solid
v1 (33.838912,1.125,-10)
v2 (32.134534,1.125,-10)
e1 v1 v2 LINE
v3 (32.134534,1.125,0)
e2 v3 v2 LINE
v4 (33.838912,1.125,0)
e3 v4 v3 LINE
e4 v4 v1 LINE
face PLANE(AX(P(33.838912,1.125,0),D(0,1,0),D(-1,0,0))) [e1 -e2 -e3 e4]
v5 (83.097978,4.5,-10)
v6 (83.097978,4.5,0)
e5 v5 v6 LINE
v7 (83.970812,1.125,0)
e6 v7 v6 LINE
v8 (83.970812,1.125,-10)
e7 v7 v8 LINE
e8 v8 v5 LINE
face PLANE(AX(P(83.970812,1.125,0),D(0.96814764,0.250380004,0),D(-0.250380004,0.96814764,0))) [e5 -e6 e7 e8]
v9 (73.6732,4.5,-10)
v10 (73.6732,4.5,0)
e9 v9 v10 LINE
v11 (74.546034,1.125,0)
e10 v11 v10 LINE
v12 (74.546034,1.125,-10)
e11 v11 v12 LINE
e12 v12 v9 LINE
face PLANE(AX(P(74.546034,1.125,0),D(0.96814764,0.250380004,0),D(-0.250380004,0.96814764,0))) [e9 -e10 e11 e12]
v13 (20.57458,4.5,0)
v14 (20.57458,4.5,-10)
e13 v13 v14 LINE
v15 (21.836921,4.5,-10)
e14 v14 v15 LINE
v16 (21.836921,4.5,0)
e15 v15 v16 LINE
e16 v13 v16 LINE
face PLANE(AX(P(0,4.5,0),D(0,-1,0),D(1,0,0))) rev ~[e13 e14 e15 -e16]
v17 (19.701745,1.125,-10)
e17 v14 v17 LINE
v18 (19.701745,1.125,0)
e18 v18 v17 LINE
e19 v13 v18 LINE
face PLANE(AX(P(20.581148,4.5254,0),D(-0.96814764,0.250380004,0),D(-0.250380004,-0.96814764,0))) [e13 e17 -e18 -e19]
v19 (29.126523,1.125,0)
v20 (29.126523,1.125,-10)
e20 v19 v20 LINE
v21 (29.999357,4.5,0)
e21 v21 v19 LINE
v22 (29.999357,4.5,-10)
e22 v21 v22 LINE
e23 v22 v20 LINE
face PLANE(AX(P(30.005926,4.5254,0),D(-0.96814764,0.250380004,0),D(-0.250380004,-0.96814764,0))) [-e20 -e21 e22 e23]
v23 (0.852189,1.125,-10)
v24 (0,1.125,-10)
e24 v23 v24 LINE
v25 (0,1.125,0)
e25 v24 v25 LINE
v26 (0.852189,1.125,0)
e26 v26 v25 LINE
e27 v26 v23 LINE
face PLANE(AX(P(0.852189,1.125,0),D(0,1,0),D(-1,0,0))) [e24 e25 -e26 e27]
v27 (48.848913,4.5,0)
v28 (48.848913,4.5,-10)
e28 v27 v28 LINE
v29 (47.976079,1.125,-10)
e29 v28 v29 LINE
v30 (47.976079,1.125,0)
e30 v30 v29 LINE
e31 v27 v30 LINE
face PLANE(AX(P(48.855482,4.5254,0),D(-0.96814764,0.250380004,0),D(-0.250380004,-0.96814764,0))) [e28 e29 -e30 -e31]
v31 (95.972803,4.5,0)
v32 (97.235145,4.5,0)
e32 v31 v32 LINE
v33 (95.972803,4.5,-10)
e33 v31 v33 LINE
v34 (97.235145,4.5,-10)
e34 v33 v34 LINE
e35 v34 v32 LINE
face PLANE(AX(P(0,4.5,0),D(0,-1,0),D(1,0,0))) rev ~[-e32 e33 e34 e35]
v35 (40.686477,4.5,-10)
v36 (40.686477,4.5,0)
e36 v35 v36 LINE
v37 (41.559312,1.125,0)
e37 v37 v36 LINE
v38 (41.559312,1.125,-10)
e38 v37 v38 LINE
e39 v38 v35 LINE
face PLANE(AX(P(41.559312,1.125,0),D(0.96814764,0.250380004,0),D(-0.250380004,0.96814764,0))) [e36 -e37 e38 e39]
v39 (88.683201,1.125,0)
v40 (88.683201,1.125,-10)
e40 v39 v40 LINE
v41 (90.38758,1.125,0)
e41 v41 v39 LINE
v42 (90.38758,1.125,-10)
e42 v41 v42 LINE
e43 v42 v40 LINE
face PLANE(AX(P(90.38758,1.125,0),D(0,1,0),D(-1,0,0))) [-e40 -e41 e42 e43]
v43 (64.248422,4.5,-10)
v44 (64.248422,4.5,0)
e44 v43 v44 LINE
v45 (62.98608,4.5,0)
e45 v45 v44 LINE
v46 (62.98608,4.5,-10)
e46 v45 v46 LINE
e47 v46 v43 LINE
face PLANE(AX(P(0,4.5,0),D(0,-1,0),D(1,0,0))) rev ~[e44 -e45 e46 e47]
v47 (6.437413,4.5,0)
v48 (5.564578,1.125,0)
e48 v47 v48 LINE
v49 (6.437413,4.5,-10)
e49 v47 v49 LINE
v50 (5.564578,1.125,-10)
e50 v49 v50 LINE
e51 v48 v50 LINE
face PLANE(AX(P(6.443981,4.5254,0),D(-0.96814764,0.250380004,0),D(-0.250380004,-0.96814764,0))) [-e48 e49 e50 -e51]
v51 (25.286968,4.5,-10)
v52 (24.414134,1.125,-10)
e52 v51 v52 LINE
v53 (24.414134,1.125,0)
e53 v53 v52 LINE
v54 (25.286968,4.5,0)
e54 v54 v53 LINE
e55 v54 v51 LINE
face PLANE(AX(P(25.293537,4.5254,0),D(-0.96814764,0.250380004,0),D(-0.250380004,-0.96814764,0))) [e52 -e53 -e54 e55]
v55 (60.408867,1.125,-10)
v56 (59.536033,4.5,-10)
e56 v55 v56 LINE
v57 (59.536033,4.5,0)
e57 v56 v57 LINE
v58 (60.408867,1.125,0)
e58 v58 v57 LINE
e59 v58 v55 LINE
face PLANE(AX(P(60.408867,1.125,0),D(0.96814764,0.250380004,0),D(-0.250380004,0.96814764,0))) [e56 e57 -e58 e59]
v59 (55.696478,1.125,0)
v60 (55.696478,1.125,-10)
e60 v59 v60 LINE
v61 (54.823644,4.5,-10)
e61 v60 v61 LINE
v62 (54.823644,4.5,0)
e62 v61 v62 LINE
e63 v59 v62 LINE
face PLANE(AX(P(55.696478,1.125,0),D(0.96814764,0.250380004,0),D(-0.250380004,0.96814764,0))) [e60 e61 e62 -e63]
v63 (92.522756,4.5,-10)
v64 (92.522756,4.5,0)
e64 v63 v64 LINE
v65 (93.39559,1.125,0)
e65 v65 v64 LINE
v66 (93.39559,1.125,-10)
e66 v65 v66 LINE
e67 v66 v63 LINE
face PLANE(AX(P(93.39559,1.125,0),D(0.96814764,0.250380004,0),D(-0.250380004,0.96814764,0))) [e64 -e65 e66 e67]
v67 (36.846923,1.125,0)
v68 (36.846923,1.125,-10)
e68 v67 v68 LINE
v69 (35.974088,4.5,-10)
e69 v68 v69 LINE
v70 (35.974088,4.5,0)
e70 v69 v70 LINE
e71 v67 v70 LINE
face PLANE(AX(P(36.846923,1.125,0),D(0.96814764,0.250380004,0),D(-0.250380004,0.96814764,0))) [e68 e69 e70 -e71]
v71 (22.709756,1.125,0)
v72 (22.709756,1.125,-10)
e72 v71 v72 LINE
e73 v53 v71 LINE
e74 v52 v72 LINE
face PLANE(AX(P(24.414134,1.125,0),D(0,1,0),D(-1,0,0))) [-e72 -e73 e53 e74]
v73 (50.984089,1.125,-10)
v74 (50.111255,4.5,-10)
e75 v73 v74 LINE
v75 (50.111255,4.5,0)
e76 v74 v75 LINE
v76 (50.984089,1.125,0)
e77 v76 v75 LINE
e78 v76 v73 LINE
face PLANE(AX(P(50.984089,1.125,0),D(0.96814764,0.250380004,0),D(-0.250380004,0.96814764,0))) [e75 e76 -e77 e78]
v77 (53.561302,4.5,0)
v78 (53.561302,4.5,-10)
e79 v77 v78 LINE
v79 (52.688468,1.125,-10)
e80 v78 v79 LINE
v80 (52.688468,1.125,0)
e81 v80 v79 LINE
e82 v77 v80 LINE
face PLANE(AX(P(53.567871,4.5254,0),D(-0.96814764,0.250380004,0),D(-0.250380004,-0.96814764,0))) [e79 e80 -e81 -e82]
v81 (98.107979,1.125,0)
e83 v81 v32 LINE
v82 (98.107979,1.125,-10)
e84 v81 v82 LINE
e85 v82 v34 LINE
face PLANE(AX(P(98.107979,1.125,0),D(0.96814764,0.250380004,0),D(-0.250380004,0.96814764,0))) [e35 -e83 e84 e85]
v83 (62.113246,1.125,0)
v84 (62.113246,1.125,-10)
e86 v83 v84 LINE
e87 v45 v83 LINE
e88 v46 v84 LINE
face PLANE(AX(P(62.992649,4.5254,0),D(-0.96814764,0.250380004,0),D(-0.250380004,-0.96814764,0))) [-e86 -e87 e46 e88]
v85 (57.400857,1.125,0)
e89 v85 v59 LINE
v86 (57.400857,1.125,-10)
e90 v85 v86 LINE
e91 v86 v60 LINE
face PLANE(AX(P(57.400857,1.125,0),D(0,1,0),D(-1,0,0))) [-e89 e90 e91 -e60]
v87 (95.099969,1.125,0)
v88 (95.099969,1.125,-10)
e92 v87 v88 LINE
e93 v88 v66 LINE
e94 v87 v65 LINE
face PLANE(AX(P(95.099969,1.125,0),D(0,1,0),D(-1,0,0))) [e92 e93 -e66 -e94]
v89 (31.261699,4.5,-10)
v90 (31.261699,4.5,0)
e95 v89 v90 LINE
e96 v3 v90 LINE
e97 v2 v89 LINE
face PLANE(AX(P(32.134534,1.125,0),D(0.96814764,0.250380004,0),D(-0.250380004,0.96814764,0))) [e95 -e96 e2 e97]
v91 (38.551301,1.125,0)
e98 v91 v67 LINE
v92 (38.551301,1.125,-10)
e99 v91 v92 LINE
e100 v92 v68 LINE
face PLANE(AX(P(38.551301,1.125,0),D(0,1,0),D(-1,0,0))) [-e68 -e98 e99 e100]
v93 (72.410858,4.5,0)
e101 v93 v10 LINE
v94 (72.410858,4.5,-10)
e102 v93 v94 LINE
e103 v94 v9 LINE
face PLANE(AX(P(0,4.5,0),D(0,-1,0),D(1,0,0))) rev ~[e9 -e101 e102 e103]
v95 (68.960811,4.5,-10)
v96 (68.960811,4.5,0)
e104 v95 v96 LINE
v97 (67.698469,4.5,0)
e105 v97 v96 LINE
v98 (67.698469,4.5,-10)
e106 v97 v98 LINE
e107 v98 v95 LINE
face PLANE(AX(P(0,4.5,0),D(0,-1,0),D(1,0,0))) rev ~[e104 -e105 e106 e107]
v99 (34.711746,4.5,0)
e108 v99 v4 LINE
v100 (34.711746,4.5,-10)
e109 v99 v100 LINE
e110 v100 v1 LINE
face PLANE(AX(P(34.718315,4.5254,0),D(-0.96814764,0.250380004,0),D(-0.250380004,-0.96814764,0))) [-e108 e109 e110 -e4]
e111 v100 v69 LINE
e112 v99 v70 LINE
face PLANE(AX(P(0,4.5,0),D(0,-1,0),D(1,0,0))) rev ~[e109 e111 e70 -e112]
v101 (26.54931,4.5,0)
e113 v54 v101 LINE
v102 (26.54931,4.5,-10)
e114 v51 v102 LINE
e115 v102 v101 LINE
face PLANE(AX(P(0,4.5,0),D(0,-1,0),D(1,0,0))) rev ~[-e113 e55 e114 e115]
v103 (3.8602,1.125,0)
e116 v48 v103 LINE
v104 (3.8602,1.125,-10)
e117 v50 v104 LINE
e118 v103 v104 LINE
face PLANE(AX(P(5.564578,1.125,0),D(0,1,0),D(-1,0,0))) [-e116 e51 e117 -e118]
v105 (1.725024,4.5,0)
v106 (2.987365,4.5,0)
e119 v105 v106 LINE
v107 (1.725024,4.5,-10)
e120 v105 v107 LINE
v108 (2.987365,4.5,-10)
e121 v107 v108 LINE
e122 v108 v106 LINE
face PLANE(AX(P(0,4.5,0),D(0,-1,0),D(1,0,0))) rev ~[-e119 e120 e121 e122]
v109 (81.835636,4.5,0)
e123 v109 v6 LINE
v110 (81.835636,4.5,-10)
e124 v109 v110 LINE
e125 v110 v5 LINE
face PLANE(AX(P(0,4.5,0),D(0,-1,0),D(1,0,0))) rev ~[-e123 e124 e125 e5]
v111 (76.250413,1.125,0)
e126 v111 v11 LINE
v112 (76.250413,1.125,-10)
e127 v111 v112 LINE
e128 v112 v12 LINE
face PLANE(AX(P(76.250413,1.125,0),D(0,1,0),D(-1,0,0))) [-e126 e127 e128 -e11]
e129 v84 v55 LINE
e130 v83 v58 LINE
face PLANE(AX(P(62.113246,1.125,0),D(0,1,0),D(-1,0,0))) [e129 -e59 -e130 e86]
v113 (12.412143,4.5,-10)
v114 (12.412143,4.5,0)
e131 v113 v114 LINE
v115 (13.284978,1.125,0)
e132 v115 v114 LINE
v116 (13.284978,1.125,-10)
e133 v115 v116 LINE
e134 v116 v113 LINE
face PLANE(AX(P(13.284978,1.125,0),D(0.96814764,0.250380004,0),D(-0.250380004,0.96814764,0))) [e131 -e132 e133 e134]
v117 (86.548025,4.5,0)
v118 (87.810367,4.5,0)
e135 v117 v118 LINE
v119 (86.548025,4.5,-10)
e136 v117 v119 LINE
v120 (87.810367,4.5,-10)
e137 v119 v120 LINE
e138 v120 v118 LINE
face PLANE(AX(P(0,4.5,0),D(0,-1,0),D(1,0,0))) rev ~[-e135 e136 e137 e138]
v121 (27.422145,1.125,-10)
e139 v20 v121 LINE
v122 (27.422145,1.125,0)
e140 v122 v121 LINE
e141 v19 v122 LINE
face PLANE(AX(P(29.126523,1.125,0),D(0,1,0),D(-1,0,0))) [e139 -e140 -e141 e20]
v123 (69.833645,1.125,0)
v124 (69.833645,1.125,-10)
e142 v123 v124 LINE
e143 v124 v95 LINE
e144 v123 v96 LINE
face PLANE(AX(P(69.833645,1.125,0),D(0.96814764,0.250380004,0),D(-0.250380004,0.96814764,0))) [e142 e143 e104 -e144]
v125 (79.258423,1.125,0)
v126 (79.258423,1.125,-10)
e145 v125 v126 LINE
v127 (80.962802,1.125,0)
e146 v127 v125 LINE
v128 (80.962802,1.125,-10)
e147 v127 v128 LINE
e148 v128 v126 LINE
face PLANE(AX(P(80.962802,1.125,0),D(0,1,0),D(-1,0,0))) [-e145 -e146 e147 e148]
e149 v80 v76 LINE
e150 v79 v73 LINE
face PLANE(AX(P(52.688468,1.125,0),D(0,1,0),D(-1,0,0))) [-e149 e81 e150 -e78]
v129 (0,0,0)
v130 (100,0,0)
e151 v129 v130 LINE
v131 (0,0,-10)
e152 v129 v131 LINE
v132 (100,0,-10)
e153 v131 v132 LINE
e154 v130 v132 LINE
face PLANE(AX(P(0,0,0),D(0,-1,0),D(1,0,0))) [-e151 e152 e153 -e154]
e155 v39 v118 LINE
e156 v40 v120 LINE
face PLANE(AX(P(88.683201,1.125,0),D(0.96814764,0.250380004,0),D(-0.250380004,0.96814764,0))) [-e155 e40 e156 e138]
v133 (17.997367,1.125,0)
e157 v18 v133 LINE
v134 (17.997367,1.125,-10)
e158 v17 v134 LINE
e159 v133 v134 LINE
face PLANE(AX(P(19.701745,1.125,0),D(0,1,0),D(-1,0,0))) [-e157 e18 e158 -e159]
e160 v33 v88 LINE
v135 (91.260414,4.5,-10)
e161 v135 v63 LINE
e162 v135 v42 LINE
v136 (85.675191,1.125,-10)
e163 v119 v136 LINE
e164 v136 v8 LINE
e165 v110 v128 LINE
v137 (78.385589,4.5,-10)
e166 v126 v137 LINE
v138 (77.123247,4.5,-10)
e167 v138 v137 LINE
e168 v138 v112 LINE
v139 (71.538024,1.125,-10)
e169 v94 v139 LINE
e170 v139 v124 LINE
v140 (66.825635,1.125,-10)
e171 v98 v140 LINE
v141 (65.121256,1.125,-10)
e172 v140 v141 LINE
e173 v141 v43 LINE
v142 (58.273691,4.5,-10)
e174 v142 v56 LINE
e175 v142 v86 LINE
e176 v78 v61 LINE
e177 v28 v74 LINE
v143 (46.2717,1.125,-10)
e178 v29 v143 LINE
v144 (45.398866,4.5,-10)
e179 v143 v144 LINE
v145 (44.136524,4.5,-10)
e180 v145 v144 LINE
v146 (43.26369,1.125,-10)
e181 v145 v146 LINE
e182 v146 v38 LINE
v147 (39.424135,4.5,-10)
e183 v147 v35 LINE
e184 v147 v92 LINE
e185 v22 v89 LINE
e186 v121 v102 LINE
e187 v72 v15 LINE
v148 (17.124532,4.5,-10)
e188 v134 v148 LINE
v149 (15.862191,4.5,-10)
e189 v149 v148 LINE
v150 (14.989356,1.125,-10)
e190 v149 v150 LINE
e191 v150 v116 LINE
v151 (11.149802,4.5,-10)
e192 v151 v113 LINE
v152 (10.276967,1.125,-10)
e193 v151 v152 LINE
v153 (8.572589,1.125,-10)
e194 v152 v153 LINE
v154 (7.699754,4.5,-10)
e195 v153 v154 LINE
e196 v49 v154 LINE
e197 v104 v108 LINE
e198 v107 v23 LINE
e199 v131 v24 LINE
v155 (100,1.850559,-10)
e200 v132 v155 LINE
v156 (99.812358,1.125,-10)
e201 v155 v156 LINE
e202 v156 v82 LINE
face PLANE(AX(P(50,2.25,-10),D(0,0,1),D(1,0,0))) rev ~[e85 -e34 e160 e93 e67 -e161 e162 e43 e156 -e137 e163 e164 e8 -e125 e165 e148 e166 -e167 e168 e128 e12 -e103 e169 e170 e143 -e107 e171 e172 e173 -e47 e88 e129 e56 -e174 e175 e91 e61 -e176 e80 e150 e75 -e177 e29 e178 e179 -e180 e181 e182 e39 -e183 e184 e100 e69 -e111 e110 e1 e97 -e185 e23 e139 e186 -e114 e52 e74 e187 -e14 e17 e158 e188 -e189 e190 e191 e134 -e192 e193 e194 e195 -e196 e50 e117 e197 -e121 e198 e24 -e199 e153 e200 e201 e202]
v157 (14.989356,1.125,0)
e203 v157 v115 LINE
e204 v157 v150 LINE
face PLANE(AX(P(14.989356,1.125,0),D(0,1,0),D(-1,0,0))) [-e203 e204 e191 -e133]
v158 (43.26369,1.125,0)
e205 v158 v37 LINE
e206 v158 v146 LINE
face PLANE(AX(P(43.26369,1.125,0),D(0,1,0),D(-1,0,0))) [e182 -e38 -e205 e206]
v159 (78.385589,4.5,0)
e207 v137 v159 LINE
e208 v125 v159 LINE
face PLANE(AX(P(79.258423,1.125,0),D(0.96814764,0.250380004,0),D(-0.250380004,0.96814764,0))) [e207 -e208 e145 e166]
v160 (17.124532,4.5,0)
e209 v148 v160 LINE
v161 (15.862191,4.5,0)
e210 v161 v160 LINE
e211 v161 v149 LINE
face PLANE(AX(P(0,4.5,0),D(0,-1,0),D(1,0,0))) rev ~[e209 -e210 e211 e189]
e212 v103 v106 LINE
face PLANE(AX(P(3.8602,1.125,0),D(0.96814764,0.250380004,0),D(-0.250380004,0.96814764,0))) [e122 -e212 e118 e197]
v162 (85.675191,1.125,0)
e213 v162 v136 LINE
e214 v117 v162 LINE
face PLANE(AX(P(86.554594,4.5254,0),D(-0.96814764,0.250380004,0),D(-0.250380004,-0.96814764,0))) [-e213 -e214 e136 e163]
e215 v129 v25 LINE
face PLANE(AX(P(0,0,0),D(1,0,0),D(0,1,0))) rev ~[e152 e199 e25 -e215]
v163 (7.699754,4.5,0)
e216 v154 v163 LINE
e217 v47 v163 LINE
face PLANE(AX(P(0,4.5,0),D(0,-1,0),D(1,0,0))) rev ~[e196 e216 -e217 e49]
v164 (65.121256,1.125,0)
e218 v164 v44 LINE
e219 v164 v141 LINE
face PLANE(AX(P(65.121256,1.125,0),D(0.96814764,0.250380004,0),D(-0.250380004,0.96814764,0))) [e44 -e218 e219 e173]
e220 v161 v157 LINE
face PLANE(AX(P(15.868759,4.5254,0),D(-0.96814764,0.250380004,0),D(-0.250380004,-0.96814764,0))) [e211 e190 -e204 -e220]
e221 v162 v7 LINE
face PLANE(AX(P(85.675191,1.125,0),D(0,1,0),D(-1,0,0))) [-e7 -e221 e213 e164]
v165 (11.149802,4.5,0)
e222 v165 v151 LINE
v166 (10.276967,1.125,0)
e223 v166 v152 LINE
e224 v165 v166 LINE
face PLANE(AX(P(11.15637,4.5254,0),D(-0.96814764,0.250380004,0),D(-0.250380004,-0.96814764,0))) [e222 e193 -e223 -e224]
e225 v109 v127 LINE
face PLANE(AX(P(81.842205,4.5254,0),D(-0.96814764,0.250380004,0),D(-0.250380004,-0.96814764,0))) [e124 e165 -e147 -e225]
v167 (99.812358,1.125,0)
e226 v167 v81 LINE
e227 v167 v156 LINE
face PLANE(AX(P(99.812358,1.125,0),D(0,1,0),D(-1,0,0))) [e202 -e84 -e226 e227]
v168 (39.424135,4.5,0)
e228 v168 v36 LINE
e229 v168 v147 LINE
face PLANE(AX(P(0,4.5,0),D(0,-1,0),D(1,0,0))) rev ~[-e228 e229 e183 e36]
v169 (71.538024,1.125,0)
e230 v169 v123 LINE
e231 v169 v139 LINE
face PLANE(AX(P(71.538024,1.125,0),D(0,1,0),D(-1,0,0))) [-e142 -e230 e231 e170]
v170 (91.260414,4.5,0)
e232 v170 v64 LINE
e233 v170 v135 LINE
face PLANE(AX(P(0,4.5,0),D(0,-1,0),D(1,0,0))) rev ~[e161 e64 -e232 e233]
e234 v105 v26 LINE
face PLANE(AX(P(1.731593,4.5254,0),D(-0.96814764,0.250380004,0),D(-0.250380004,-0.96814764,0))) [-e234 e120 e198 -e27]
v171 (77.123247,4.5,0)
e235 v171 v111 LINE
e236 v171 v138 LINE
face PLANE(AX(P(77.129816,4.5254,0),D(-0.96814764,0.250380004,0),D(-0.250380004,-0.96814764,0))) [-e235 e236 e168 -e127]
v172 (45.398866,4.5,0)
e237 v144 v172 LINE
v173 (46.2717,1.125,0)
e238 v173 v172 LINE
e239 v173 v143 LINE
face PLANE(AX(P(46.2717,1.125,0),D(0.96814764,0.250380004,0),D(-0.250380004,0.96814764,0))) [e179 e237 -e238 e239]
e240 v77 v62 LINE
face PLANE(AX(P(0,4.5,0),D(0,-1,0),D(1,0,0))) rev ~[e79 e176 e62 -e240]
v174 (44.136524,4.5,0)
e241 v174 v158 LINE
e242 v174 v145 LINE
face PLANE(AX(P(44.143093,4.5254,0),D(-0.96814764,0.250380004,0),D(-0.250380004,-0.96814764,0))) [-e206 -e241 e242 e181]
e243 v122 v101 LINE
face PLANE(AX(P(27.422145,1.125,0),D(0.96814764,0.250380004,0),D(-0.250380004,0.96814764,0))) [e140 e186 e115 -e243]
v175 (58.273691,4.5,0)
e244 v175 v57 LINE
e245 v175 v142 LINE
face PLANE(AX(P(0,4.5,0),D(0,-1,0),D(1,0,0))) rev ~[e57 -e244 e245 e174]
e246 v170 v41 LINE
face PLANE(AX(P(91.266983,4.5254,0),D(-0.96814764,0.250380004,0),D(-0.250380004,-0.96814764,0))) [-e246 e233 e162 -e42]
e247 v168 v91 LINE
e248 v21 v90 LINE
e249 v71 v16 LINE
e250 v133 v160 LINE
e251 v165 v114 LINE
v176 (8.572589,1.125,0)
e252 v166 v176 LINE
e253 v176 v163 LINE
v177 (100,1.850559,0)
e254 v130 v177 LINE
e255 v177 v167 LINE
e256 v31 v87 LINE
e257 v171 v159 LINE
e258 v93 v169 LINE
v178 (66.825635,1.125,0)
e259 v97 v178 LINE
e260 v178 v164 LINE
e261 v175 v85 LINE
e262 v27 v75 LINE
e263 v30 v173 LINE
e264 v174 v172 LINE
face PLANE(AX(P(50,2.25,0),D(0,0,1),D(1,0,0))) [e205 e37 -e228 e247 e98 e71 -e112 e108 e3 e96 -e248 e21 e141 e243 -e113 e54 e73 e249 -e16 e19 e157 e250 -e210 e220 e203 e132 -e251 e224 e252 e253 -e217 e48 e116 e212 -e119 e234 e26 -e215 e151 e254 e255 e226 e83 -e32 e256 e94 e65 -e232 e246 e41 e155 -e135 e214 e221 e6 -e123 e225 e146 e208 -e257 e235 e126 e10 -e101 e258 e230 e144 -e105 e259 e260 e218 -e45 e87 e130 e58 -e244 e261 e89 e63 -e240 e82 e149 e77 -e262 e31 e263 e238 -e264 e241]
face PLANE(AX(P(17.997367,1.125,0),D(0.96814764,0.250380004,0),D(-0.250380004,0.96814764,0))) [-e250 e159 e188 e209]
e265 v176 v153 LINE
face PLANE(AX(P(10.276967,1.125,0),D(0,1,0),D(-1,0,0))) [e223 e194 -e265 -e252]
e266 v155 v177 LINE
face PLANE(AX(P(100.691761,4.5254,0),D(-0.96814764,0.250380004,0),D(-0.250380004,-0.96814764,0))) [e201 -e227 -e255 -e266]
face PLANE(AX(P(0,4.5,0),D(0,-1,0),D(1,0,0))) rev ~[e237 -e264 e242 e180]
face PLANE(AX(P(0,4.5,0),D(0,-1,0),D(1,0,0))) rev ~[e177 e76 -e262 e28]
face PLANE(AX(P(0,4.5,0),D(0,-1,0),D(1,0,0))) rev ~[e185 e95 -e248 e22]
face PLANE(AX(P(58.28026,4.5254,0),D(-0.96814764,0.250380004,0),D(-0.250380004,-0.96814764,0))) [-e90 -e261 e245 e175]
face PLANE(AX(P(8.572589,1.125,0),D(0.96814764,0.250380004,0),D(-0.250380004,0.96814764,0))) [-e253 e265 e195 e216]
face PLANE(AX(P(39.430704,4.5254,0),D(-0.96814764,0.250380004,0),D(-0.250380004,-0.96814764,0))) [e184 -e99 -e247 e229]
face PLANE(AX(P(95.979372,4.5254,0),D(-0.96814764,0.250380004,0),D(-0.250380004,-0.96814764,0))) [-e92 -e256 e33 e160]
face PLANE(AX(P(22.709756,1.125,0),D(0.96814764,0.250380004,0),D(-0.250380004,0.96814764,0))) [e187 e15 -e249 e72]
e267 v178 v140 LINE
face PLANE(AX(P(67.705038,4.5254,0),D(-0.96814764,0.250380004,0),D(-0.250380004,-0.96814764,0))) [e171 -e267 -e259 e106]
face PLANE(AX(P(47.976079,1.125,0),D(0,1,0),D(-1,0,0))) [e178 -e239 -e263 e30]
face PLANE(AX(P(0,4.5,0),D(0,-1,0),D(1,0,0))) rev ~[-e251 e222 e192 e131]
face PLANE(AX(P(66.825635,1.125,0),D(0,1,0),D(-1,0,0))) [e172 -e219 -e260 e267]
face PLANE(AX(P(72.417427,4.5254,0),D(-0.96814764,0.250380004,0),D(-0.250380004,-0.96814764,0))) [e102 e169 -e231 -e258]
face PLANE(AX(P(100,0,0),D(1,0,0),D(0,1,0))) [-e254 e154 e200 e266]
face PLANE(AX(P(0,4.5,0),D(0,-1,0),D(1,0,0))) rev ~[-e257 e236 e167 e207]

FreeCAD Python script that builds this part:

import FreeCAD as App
import Part
import Sketcher
from FreeCAD import Vector
Q = App.Units.Quantity

doc = App.newDocument("Part")
body = doc.addObject("PartDesign::Body", "Body")

# Sketch on XY plane
sketch1 = body.newObject("Sketcher::SketchObject", "Sketch")
sketch1.AttachmentSupport = (doc.getObject("XY_Plane"), [""])
sketch1.MapMode = "FlatFace"
sketch1.addGeometry(Part.LineSegment(Vector(0, 4.5, 0), Vector(0, 0, 0)), False)
sketch1.addGeometry(Part.LineSegment(Vector(0, 0, 0), Vector(100, 0, 0)), False)
sketch1.addGeometry(Part.LineSegment(Vector(100, 0, 0), Vector(100, 4.5, 0)), False)
sketch1.addGeometry(Part.LineSegment(Vector(100, 4.5, 0), Vector(0, 4.5, 0)), False)
sketch1.addConstraint(Sketcher.Constraint("Coincident", 0, 2, 1, 1))
sketch1.addConstraint(Sketcher.Constraint("Coincident", 1, 2, 2, 1))
sketch1.addConstraint(Sketcher.Constraint("Coincident", 2, 2, 3, 1))
sketch1.addConstraint(Sketcher.Constraint("Coincident", 3, 2, 0, 1))
sketch1.addConstraint(Sketcher.Constraint("Vertical", 0))
sketch1.addConstraint(Sketcher.Constraint("Horizontal", 1))
sketch1.addConstraint(Sketcher.Constraint("Vertical", 2))
sketch1.addConstraint(Sketcher.Constraint("Horizontal", 3))
sketch1.addConstraint(Sketcher.Constraint("Coincident", 0, 2, -1, 1))
sketch1.addConstraint(Sketcher.Constraint("DistanceX", 1, 1, 1, 2, 100.0))
sketch1.addConstraint(Sketcher.Constraint("DistanceY", 0, 2, 0, 1, 4.5))
pad1 = body.newObject("PartDesign::Pad", "Pad")
pad1.Profile = sketch1
pad1.Length = 10
pad1.Reversed = True

# Sketch on XY plane
sketch2 = body.newObject("Sketcher::SketchObject", "Sketch001")
sketch2.AttachmentSupport = (doc.getObject("XY_Plane"), [""])
sketch2.MapMode = "FlatFace"
sketch2.addGeometry(Part.LineSegment(Vector(-0.9, 1.1, 0), Vector(0.9, 1.1, 0)), False)
sketch2.addGeometry(Part.LineSegment(Vector(0.9, 1.1, 0), Vector(1.7, 4.5, 0)), False)
sketch2.addGeometry(Part.LineSegment(Vector(1.7, 4.5, 0), Vector(-1.7, 4.5, 0)), False)
sketch2.addGeometry(Part.LineSegment(Vector(-1.7, 4.5, 0), Vector(-0.9, 1.1, 0)), False)
sketch2.addConstraint(Sketcher.Constraint("Coincident", 0, 2, 1, 1))
sketch2.addConstraint(Sketcher.Constraint("Coincident", 1, 2, 2, 1))
sketch2.addConstraint(Sketcher.Constraint("Coincident", 2, 2, 3, 1))
sketch2.addConstraint(Sketcher.Constraint("Coincident", 3, 2, 0, 1))
sketch2.addConstraint(Sketcher.Constraint("Horizontal", 0))
sketch2.addConstraint(Sketcher.Constraint("Horizontal", 2))
sketch2.addConstraint(Sketcher.Constraint("Equal", 1, 3))
sketch2.addConstraint(Sketcher.Constraint("Angle", 1, Q("75.5 deg")))
sketch2.addConstraint(Sketcher.Constraint("DistanceY", -1, 1, 0, 2, 1.125))
sketch2.addConstraint(Sketcher.Constraint("DistanceX", 0, 1, 0, 2, 1.704379))
sketch2.addConstraint(Sketcher.Constraint("DistanceY", -1, 1, 1, 2, 4.5254))
sketch2.addConstraint(Sketcher.Constraint("DistanceX", -1, 1, 0, 2, 0.852189))
pocket1 = body.newObject("PartDesign::Pocket", "Pocket")
pocket1.Profile = sketch2
pocket1.Type = "ThroughAll"
doc.recompute()

linearpattern = body.newObject("PartDesign::LinearPattern", "LinearPattern")
linearpattern.Originals = [pocket1]
linearpattern.Direction = (doc.getObject("X_Axis"), [""])
linearpattern.Mode = "offset"
linearpattern.Offset = 4.712389
linearpattern.Occurrences = 22
body.Tip = linearpattern

doc.recompute()
